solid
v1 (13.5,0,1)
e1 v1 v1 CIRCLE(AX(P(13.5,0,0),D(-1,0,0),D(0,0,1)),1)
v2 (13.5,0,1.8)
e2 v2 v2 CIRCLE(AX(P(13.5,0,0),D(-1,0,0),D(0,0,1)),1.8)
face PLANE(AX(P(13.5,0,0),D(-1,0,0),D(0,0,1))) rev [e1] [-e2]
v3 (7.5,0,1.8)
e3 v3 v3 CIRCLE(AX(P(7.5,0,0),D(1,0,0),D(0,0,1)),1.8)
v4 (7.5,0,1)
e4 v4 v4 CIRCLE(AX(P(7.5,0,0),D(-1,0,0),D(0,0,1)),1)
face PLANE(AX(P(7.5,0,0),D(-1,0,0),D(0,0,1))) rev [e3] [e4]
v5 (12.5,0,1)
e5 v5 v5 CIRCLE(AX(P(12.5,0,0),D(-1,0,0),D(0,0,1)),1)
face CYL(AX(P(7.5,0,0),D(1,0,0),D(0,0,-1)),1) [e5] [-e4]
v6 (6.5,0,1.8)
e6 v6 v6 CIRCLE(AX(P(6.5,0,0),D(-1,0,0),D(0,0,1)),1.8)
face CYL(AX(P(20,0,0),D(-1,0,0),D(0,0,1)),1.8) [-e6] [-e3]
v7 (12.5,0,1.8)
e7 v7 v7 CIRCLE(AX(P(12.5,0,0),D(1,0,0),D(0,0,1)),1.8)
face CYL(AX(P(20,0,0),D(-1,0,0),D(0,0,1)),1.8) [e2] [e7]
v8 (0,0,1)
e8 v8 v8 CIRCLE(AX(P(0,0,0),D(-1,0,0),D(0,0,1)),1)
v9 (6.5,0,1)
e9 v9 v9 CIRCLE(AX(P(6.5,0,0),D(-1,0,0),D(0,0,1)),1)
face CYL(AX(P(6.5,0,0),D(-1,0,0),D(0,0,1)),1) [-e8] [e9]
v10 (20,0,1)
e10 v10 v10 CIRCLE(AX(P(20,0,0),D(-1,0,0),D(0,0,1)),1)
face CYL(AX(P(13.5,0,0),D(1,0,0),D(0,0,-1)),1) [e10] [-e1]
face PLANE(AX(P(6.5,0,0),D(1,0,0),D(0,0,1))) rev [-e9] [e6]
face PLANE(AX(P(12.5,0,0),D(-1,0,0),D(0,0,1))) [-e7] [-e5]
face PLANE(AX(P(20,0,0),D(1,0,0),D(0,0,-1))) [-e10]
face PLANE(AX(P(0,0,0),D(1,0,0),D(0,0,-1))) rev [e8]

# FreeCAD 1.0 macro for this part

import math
import FreeCAD as App
import Part
import Sketcher
from FreeCAD import Vector

doc = App.newDocument("Part")
body = doc.addObject("PartDesign::Body", "Body")

# Sketch on YZ plane
sketch1 = doc.addObject("Sketcher::SketchObject", "Sketch")
body.addObject(sketch1)
sketch1.AttachmentSupport = (doc.YZ_Plane, [""])
sketch1.MapMode = "FlatFace"
sketch1.addGeometry(Part.Circle(Vector(0, 0, 0), Vector(0, 0, 1), 1.8), False)
sketch1.addConstraint([
    Sketcher.Constraint("Coincident", 0, 3, -1, 1),
    Sketcher.Constraint("Diameter", 0, 3.6),
])
pad1 = doc.addObject("PartDesign::Pad", "Pad")
body.addObject(pad1)
pad1.Profile = sketch1
pad1.Length = 20

# Sketch on YZ plane
sketch2 = doc.addObject("Sketcher::SketchObject", "Sketch001")
body.addObject(sketch2)
sketch2.AttachmentSupport = (doc.YZ_Plane, [""])
sketch2.MapMode = "FlatFace"
sketch2.AttachmentOffset = App.Placement(Vector(0, 0, 20), App.Rotation())
sketch2.addGeometry([
    Part.LineSegment(Vector(0, 1.8, 0), Vector(0, 1, 0)),
    Part.ArcOfCircle(Part.Circle(Vector(0, 0, 0), Vector(0, 0, 1), 1), math.radians(-90), math.radians(90)),
    Part.LineSegment(Vector(0, -1, 0), Vector(0, -1.8, 0)),
    Part.ArcOfCircle(Part.Circle(Vector(0, 0, 0), Vector(0, 0, 1), 1.8), math.radians(-90), math.radians(90)),
], False)
sketch2.addConstraint([
    Sketcher.Constraint("Coincident", 0, 2, 1, 2),
    Sketcher.Constraint("Coincident", 1, 1, 2, 1),
    Sketcher.Constraint("Coincident", 2, 2, 3, 1),
    Sketcher.Constraint("Coincident", 3, 2, 0, 1),
    Sketcher.Constraint("Vertical", 0),
    Sketcher.Constraint("Vertical", 2),
    Sketcher.Constraint("Coincident", 1, 3, -1, 1),
    Sketcher.Constraint("Coincident", 3, 3, -1, 1),
    Sketcher.Constraint("PointOnObject", 0, 2, -2),
    Sketcher.Constraint("PointOnObject", 1, 1, -2),
    Sketcher.Constraint("Radius", 1, 1.0),
    Sketcher.Constraint("Radius", 3, 1.8),
])
pocket1 = doc.addObject("PartDesign::Pocket", "Pocket")
body.addObject(pocket1)
pocket1.Profile = sketch2
pocket1.Length = 6.5

# Sketch on YZ plane
sketch3 = doc.addObject("Sketcher::SketchObject", "Sketch002")
body.addObject(sketch3)
sketch3.AttachmentSupport = (doc.YZ_Plane, [""])
sketch3.MapMode = "FlatFace"
sketch3.AttachmentOffset = App.Placement(Vector(0, 0, 12.5), App.Rotation())
sketch3.addGeometry([
    Part.LineSegment(Vector(0, 1.8, 0), Vector(0, 1, 0)),
    Part.ArcOfCircle(Part.Circle(Vector(0, 0, 0), Vector(0, 0, 1), 1), math.radians(-90), math.radians(90)),
    Part.LineSegment(Vector(0, -1, 0), Vector(0, -1.8, 0)),
    Part.ArcOfCircle(Part.Circle(Vector(0, 0, 0), Vector(0, 0, 1), 1.8), math.radians(-90), math.radians(90)),
], False)
sketch3.addConstraint([
    Sketcher.Constraint("Coincident", 0, 2, 1, 2),
    Sketcher.Constraint("Coincident", 1, 1, 2, 1),
    Sketcher.Constraint("Coincident", 2, 2, 3, 1),
    Sketcher.Constraint("Coincident", 3, 2, 0, 1),
    Sketcher.Constraint("Vertical", 0),
    Sketcher.Constraint("Vertical", 2),
    Sketcher.Constraint("Coincident", 1, 3, -1, 1),
    Sketcher.Constraint("Coincident", 3, 3, -1, 1),
    Sketcher.Constraint("PointOnObject", 0, 2, -2),
    Sketcher.Constraint("PointOnObject", 1, 1, -2),
    Sketcher.Constraint("Radius", 1, 1.0),
    Sketcher.Constraint("Radius", 3, 1.8),
])
pocket2 = doc.addObject("PartDesign::Pocket", "Pocket001")
body.addObject(pocket2)
pocket2.Profile = sketch3
pocket2.Length = 5
doc.recompute()

datumplane = doc.addObject("PartDesign::Plane", "DatumPlane")
body.addObject(datumplane)
datumplane.AttachmentSupport = (doc.YZ_Plane, [""])
datumplane.MapMode = "FlatFace"
datumplane.AttachmentOffset = App.Placement(Vector(0, 0, 10), App.Rotation())
mirrored = doc.addObject("PartDesign::Mirrored", "Mirrored")
body.addObject(mirrored)
mirrored.Originals = [pocket1]
mirrored.MirrorPlane = (datumplane, [""])
body.Tip = mirrored
doc.recompute()

mirrored2 = doc.addObject("PartDesign::Mirrored", "Mirrored001")
body.addObject(mirrored2)
mirrored2.Originals = [pocket2, pocket1]
mirrored2.MirrorPlane = (doc.XZ_Plane, [""])
body.Tip = mirrored2

# Sketch on YZ plane
sketch4 = doc.addObject("Sketcher::SketchObject", "Sketch003")
body.addObject(sketch4)
sketch4.AttachmentSupport = (doc.YZ_Plane, [""])
sketch4.MapMode = "FlatFace"
sketch4.addGeometry([
    Part.LineSegment(Vector(0, 1.8, 0), Vector(0, 1, 0)),
    Part.ArcOfCircle(Part.Circle(Vector(0, 0, 0), Vector(0, 0, 1), 1), math.radians(90), math.radians(270)),
    Part.LineSegment(Vector(0, -1, 0), Vector(0, -1.8, 0)),
    Part.ArcOfCircle(Part.Circle(Vector(0, 0, 0), Vector(0, 0, 1), 1.8), math.radians(90), math.radians(270)),
], False)
sketch4.addConstraint([
    Sketcher.Constraint("Coincident", 0, 2, 1, 1),
    Sketcher.Constraint("Coincident", 1, 2, 2, 1),
    Sketcher.Constraint("Coincident", 2, 2, 3, 2),
    Sketcher.Constraint("Coincident", 3, 1, 0, 1),
    Sketcher.Constraint("Vertical", 0),
    Sketcher.Constraint("Vertical", 2),
    Sketcher.Constraint("Coincident", 1, 3, -1, 1),
    Sketcher.Constraint("Coincident", 3, 3, -1, 1),
    Sketcher.Constraint("PointOnObject", 0, 2, -2),
    Sketcher.Constraint("PointOnObject", 1, 2, -2),
    Sketcher.Constraint("Radius", 1, 1.0),
    Sketcher.Constraint("Radius", 3, 1.8),
])
pocket3 = doc.addObject("PartDesign::Pocket", "Pocket002")
body.addObject(pocket3)
pocket3.Profile = sketch4
pocket3.Length = 6.5
pocket3.Reversed = True

doc.recompute()
